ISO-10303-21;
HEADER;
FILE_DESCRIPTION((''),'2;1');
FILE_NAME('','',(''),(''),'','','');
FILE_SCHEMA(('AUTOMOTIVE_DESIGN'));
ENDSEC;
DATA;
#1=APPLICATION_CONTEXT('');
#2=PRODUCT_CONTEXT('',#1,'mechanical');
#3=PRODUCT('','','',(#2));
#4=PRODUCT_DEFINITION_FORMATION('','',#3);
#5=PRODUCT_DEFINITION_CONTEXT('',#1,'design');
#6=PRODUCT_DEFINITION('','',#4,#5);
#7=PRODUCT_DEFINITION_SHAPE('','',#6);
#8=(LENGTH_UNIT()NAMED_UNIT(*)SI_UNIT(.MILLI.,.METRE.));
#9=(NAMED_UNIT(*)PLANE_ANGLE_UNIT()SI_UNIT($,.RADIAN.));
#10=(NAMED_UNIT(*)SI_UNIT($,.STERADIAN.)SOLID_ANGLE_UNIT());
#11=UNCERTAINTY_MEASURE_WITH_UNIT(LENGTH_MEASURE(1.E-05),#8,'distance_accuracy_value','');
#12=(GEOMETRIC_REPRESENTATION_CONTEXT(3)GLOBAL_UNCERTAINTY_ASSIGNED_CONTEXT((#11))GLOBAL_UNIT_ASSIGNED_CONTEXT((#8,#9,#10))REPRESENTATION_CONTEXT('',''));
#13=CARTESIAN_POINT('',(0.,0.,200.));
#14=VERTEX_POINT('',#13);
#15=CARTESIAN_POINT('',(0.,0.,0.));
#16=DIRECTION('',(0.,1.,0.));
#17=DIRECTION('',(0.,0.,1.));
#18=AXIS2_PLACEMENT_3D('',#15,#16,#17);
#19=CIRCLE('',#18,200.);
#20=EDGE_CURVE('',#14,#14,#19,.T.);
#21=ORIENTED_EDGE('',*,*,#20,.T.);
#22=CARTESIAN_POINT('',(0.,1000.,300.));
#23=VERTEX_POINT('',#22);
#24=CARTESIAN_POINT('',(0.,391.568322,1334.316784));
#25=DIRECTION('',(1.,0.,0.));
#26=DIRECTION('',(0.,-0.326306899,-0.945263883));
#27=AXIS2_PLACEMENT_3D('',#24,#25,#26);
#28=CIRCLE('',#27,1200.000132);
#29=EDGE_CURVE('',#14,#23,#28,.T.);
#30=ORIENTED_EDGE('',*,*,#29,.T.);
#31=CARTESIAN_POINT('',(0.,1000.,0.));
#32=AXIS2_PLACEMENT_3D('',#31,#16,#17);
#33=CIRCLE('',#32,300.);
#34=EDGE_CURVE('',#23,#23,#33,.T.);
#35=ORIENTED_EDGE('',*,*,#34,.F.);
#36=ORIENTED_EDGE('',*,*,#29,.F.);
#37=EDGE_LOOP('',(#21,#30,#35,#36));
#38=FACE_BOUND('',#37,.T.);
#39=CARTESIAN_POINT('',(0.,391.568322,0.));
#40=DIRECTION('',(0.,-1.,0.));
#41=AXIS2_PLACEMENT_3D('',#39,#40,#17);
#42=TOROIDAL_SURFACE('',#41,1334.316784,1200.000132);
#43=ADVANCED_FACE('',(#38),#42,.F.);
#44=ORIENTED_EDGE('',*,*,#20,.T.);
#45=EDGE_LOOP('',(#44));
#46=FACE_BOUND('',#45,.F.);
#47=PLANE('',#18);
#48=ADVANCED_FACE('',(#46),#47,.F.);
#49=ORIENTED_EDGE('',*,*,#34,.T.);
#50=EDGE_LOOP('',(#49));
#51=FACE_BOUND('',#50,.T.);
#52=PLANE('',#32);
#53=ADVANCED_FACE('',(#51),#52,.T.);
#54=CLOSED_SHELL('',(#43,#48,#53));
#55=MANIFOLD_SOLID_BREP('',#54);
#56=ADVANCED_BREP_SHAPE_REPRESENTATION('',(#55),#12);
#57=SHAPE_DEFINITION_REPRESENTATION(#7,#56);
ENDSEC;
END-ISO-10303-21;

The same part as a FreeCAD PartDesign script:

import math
import FreeCAD as App
import Part
import Sketcher
Q = App.Units.Quantity

doc = App.newDocument("Part")
body = doc.addObject("PartDesign::Body", "Body")

# Sketch on YZ plane
sketch1 = body.newObject("Sketcher::SketchObject", "Sketch")
sketch1.AttachmentSupport = (doc.getObject("YZ_Plane"), [""])
sketch1.MapMode = "FlatFace"
sketch1.addGeometry(Part.ArcOfCircle(Part.Circle(App.Vector(392, 1334, 0), App.Vector(0, 0, 1), 1200), math.radians(-109), math.radians(-60)), False)
sketch1.addGeometry(Part.LineSegment(App.Vector(0, 200, 0), App.Vector(0, 0, 0)), False)
sketch1.addGeometry(Part.LineSegment(App.Vector(0, 0, 0), App.Vector(1000, 0, 0)), False)
sketch1.addGeometry(Part.LineSegment(App.Vector(1000, 0, 0), App.Vector(1000, 300, 0)), False)
sketch1.addConstraint(Sketcher.Constraint("Coincident", 0, 1, 1, 1))
sketch1.addConstraint(Sketcher.Constraint("Coincident", 1, 2, 2, 1))
sketch1.addConstraint(Sketcher.Constraint("Coincident", 2, 2, 3, 1))
sketch1.addConstraint(Sketcher.Constraint("Coincident", 3, 2, 0, 2))
sketch1.addConstraint(Sketcher.Constraint("Vertical", 1))
sketch1.addConstraint(Sketcher.Constraint("Horizontal", 2))
sketch1.addConstraint(Sketcher.Constraint("Vertical", 3))
sketch1.addConstraint(Sketcher.Constraint("Coincident", 1, 2, -1, 1))
sketch1.addConstraint(Sketcher.Constraint("Radius", 0, Q("1200 mm")))
sketch1.addConstraint(Sketcher.Constraint("DistanceX", 2, 1, 2, 2, Q("1000 mm")))
sketch1.addConstraint(Sketcher.Constraint("DistanceY", 1, 2, 1, 1, Q("200 mm")))
sketch1.addConstraint(Sketcher.Constraint("DistanceY", 3, 1, 3, 2, Q("300 mm")))
revolution = body.newObject("PartDesign::Revolution", "Revolution")
revolution.Profile = sketch1
revolution.ReferenceAxis = (sketch1, ["H_Axis"])
revolution.Angle = 360

doc.recompute()
